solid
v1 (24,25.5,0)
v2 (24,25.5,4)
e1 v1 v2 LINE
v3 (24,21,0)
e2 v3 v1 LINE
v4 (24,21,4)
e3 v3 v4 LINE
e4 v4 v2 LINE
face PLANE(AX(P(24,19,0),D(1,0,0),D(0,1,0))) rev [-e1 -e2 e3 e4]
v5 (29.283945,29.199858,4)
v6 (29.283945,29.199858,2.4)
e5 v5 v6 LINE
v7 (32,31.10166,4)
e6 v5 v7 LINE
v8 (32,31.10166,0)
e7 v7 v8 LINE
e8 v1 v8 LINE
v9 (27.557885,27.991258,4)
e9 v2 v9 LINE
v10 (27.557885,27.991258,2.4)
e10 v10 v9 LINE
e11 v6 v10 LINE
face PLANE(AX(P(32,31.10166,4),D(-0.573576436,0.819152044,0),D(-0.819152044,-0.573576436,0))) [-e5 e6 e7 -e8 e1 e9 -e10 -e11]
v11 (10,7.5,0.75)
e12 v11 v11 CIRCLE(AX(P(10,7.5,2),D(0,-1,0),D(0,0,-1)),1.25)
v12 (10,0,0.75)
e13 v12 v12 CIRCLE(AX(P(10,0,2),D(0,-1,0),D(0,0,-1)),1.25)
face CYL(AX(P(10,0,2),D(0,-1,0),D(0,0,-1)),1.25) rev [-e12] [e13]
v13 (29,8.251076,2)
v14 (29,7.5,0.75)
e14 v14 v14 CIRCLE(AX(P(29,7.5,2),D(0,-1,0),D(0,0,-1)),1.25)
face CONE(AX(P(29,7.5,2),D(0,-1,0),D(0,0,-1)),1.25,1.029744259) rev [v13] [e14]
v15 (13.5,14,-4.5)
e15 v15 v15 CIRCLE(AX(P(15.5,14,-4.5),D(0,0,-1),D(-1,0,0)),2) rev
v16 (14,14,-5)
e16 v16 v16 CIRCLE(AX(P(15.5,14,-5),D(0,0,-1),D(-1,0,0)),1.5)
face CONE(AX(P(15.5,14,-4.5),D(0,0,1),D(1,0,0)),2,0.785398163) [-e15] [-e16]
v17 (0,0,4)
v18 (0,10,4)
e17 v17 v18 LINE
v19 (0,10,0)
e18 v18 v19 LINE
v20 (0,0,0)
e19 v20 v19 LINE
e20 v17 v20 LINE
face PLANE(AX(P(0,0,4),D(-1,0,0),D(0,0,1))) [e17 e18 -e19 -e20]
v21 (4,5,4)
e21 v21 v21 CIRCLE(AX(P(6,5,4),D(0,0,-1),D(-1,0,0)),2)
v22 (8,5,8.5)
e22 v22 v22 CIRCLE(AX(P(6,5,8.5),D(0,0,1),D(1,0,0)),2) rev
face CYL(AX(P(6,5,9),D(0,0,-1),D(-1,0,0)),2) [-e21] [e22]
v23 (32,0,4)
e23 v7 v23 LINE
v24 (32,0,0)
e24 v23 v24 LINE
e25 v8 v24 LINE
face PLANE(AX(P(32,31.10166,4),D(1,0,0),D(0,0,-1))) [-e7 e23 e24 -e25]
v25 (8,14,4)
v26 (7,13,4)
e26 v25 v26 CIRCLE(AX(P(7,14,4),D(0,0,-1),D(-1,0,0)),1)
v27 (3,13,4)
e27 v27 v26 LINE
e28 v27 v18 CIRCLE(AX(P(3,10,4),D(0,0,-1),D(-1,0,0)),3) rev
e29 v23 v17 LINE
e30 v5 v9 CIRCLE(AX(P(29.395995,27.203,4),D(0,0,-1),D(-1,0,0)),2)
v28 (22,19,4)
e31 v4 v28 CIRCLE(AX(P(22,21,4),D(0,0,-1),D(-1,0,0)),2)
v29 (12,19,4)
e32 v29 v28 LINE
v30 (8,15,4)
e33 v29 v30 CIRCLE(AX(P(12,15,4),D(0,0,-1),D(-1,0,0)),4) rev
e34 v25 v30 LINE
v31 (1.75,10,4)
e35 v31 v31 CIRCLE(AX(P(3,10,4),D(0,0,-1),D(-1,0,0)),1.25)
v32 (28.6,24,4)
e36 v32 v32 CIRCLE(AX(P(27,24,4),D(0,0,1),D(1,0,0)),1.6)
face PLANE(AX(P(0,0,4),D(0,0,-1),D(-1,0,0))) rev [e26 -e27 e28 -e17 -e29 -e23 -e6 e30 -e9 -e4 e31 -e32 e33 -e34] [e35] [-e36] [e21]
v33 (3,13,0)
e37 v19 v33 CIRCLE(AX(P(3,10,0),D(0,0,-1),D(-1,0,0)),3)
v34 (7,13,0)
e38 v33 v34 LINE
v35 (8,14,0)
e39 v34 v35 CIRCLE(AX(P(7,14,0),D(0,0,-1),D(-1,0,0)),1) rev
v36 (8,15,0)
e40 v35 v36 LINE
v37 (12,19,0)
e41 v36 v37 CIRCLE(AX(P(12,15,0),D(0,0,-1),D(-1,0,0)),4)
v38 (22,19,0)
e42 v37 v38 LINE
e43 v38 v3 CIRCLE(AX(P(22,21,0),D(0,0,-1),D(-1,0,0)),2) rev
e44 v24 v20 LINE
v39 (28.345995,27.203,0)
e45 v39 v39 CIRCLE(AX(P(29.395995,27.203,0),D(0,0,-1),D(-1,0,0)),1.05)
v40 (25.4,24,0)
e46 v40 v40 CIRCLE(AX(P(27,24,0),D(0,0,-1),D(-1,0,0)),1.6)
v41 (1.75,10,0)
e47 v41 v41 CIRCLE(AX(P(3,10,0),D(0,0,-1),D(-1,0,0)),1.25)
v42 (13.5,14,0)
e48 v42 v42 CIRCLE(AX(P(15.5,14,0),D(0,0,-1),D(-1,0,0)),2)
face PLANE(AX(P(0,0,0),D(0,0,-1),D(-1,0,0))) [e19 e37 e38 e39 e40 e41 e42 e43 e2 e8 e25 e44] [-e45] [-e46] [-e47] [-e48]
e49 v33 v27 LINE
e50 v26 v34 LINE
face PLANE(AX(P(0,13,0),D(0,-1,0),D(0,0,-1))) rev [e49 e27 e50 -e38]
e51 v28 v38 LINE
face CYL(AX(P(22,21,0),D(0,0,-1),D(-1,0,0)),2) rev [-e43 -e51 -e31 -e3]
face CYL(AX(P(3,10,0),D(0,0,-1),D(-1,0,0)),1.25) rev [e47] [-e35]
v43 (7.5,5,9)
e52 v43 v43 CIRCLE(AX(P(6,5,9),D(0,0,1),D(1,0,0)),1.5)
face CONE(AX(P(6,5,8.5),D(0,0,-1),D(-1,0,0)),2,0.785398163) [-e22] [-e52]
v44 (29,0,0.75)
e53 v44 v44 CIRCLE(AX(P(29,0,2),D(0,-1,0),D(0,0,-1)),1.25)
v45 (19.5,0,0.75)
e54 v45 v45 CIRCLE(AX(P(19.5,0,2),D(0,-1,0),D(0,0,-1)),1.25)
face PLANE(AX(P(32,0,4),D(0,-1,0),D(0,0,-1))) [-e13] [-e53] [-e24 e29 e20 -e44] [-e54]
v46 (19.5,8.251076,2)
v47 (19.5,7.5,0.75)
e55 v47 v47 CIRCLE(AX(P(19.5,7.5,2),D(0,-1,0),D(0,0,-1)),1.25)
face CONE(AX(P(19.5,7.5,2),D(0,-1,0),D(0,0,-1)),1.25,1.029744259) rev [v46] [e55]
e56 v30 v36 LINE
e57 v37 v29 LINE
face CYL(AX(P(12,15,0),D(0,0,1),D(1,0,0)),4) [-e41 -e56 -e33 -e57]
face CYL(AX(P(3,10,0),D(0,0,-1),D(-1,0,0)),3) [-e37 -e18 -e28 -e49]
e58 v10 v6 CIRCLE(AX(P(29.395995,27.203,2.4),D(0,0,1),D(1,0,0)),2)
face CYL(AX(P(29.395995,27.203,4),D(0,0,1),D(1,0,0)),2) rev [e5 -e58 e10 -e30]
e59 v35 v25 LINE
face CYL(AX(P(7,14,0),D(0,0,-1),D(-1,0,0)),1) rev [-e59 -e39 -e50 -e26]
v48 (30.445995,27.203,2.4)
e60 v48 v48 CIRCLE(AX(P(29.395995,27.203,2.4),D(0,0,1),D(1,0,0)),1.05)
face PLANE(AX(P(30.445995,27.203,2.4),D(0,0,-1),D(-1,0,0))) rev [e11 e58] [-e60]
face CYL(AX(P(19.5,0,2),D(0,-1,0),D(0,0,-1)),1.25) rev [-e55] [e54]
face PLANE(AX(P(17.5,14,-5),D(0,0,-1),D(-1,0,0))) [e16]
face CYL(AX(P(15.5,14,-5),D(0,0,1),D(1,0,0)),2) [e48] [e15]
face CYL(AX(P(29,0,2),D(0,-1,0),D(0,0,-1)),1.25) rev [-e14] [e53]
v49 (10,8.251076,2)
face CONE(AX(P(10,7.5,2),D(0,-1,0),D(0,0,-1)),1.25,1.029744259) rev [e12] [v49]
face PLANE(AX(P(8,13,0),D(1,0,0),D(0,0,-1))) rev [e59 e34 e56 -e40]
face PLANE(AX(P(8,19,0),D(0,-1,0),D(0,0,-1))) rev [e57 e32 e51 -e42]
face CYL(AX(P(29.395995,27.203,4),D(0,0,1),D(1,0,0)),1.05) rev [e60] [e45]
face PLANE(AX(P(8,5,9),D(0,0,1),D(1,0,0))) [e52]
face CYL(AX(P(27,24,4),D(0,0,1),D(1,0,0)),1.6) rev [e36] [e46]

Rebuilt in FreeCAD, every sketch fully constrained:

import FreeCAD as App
import Part
import Sketcher
Q = App.Units.Quantity


def edges_at(feature, points):
    """Names of the edges that pass closest to the given points."""
    edges = feature.Shape.Edges
    near = lambda p: min(range(len(edges)), key=lambda i: edges[i].distToShape(Part.Vertex(*p))[0])
    return sorted({f"Edge{near(p) + 1}" for p in points})


def faces_at(feature, points):
    """Names of the faces that lie closest to the given points."""
    faces = feature.Shape.Faces
    near = lambda p: min(range(len(faces)), key=lambda i: faces[i].distToShape(Part.Vertex(*p))[0])
    return sorted({f"Face{near(p) + 1}" for p in points})


def add_polygon(sketch, points):
    """Adds a closed chain of lines whose ends are joined by coincident constraints."""
    first, n = sketch.GeometryCount, len(points)
    for a, b in zip(points, points[1:] + points[:1]):
        sketch.addGeometry(Part.LineSegment(App.Vector(*a, 0), App.Vector(*b, 0)), False)
    for i in range(n):
        sketch.addConstraint(Sketcher.Constraint("Coincident", first + i, 2, first + (i + 1) % n, 1))

doc = App.newDocument("Part")
params = doc.addObject("Spreadsheet::Sheet", "Params")
for row, (alias, value) in enumerate([
    ("sketch1_width", "32 mm"),
    ("pad1_length", "4 mm"),
    ("sketch2_width", "8 mm"),
    ("sketch3_width", "16 mm"),
    ("draft_angle", "35 deg"),
    ("sketch4_width", "2 mm"),
    ("sketch4_height", "5 mm"),
    ("revolution_angle", "360 deg"),
    ("sketch5_width", "2 mm"),
    ("sketch5_height", "5 mm"),
    ("revolution2_angle", "360 deg"),
    ("sketch6_diameter", "3.2 mm"),
    ("hole_diameter", "3.2 mm"),
    ("hole_depth", "9 mm"),
    ("sketch7_diameter", "2.5 mm"),
    ("hole2_diameter", "2.5 mm"),
    ("hole2_depth", "9 mm"),
    ("sketch8_diameter", "2.1 mm"),
    ("hole3_diameter", "2.1 mm"),
    ("hole3_depth", "9 mm"),
    ("hole3_cbore_diameter", "4 mm"),
    ("hole3_cbore_depth", "1.6 mm"),
    ("sketch9_diameter", "2.5 mm"),
    ("hole4_diameter", "2.5 mm"),
    ("hole4_depth", "7.5 mm"),
    ("chamfer_size", "0.5 mm"),
    ("fillet_radius", "1 mm"),
    ("fillet2_radius", "2 mm"),
    ("fillet3_radius", "3 mm"),
    ("fillet4_radius", "4 mm"),
], start=1):
    params.set(f"A{row}", alias)
    params.set(f"B{row}", "=" + value)
    params.setAlias(f"B{row}", alias)

body = doc.addObject("PartDesign::Body", "Body")

# Sketch on XY plane
sketch1 = doc.addObject("Sketcher::SketchObject", "Sketch")
body.addObject(sketch1)
sketch1.AttachmentSupport = (doc.XY_Plane, [""])
sketch1.MapMode = "FlatFace"
add_polygon(sketch1, [(32, 31), (32, 0), (0, 0), (0, 31)])  # lines 0-3
sketch1.addConstraint([
    Sketcher.Constraint("Vertical", 0),
    Sketcher.Constraint("Horizontal", 1),
    Sketcher.Constraint("Vertical", 2),
    Sketcher.Constraint("Horizontal", 3),
    Sketcher.Constraint("Coincident", 1, 2, -1, 1),
    Sketcher.Constraint("DistanceX", 1, 2, 1, 1, Q("32 mm")),
    Sketcher.Constraint("DistanceY", 0, 2, 0, 1, Q("31.10166 mm")),
])
sketch1.setExpression("Constraints[9]", "Params.sketch1_width")
pad1 = doc.addObject("PartDesign::Pad", "Pad")
body.addObject(pad1)
pad1.Profile = sketch1
pad1.setExpression("Length", "Params.pad1_length")

# Sketch on XY plane
sketch2 = doc.addObject("Sketcher::SketchObject", "Sketch001")
body.addObject(sketch2)
sketch2.AttachmentSupport = (doc.XY_Plane, [""])
sketch2.MapMode = "FlatFace"
sketch2.AttachmentOffset = App.Placement(App.Vector(0, 0, 4), App.Rotation())
add_polygon(sketch2, [(0, 31), (0, 13), (8, 13), (8, 31)])  # lines 0-3
sketch2.addConstraint([
    Sketcher.Constraint("Vertical", 0),
    Sketcher.Constraint("Horizontal", 1),
    Sketcher.Constraint("Vertical", 2),
    Sketcher.Constraint("Horizontal", 3),
    Sketcher.Constraint("PointOnObject", 0, 2, -2),
    Sketcher.Constraint("DistanceX", 1, 1, 1, 2, Q("8 mm")),
    Sketcher.Constraint("DistanceY", -1, 1, 0, 2, Q("13 mm")),
    Sketcher.Constraint("DistanceY", 0, 2, 0, 1, Q("18.10166 mm")),
])
sketch2.setExpression("Constraints[9]", "Params.sketch2_width")
pocket1 = doc.addObject("PartDesign::Pocket", "Pocket")
body.addObject(pocket1)
pocket1.Profile = sketch2
pocket1.Type = "ThroughAll"

# Sketch on XY plane
sketch3 = doc.addObject("Sketcher::SketchObject", "Sketch002")
body.addObject(sketch3)
sketch3.AttachmentSupport = (doc.XY_Plane, [""])
sketch3.MapMode = "FlatFace"
sketch3.AttachmentOffset = App.Placement(App.Vector(0, 0, 4), App.Rotation())
add_polygon(sketch3, [(8, 31), (8, 19), (24, 19), (24, 31)])  # lines 0-3
sketch3.addConstraint([
    Sketcher.Constraint("Vertical", 0),
    Sketcher.Constraint("Horizontal", 1),
    Sketcher.Constraint("Vertical", 2),
    Sketcher.Constraint("Horizontal", 3),
    Sketcher.Constraint("DistanceX", 1, 1, 1, 2, Q("16 mm")),
    Sketcher.Constraint("DistanceX", -1, 1, 0, 2, Q("8 mm")),
    Sketcher.Constraint("DistanceY", -1, 1, 0, 2, Q("19 mm")),
    Sketcher.Constraint("DistanceY", 0, 2, 0, 1, Q("12.10166 mm")),
])
sketch3.setExpression("Constraints[8]", "Params.sketch3_width")
pocket2 = doc.addObject("PartDesign::Pocket", "Pocket001")
body.addObject(pocket2)
pocket2.Profile = sketch3
pocket2.Type = "ThroughAll"
doc.recompute()

datumplane = doc.addObject("PartDesign::Plane", "DatumPlane")
body.addObject(datumplane)
datumplane.AttachmentSupport = (doc.YZ_Plane, [""])
datumplane.MapMode = "FlatFace"
datumplane.AttachmentOffset = App.Placement(App.Vector(0, 0, 32), App.Rotation())
draft = doc.addObject("PartDesign::Draft", "Draft")
body.addObject(draft)
draft.Base = (pocket2, faces_at(pocket2, [(28, 31.102, 2)]))
draft.NeutralPlane = (datumplane, [""])
draft.setExpression("Angle", "Params.draft_angle")
draft.Reversed = True

# Sketch on XZ plane
sketch4 = doc.addObject("Sketcher::SketchObject", "Sketch003")
body.addObject(sketch4)
sketch4.AttachmentSupport = (doc.XZ_Plane, [""])
sketch4.MapMode = "FlatFace"
sketch4.AttachmentOffset = App.Placement(App.Vector(0, 0, -5), App.Rotation())
add_polygon(sketch4, [(6, 9), (6, 4), (8, 4), (8, 9)])  # lines 0-3
sketch4.addGeometry(Part.LineSegment(App.Vector(6, 9, 0), App.Vector(6, 4, 0)), True)  # axis
sketch4.addConstraint([
    Sketcher.Constraint("Vertical", 0),
    Sketcher.Constraint("Horizontal", 1),
    Sketcher.Constraint("Vertical", 2),
    Sketcher.Constraint("Horizontal", 3),
    Sketcher.Constraint("Vertical", 4),
    Sketcher.Constraint("Coincident", 4, 1, 3, 2),
    Sketcher.Constraint("Horizontal", 1, 2, 4, 2),
    Sketcher.Constraint("DistanceX", 1, 1, 1, 2, Q("2 mm")),
    Sketcher.Constraint("DistanceY", 0, 2, 0, 1, Q("5 mm")),
    Sketcher.Constraint("DistanceX", -1, 1, 0, 2, Q("6 mm")),
    Sketcher.Constraint("DistanceY", -1, 1, 0, 2, Q("4 mm")),
])
sketch4.setExpression("Constraints[11]", "Params.sketch4_width")
sketch4.setExpression("Constraints[12]", "Params.sketch4_height")
revolution = doc.addObject("PartDesign::Revolution", "Revolution")
body.addObject(revolution)
revolution.Profile = sketch4
revolution.ReferenceAxis = (sketch4, ["Axis0"])
revolution.setExpression("Angle", "Params.revolution_angle")

# Sketch on XZ plane
sketch5 = doc.addObject("Sketcher::SketchObject", "Sketch004")
body.addObject(sketch5)
sketch5.AttachmentSupport = (doc.XZ_Plane, [""])
sketch5.MapMode = "FlatFace"
sketch5.AttachmentOffset = App.Placement(App.Vector(0, 0, -14), App.Rotation())
add_polygon(sketch5, [(15.5, -5), (15.5, 0), (17.5, 0), (17.5, -5)])  # lines 0-3
sketch5.addGeometry(Part.LineSegment(App.Vector(15.5, -5, 0), App.Vector(15.5, 0, 0)), True)  # axis
sketch5.addConstraint([
    Sketcher.Constraint("Vertical", 0),
    Sketcher.Constraint("Horizontal", 1),
    Sketcher.Constraint("Vertical", 2),
    Sketcher.Constraint("Horizontal", 3),
    Sketcher.Constraint("Vertical", 4),
    Sketcher.Constraint("Coincident", 4, 1, 3, 2),
    Sketcher.Constraint("PointOnObject", 0, 2, -1),
    Sketcher.Constraint("PointOnObject", 4, 2, -1),
    Sketcher.Constraint("DistanceX", 1, 1, 1, 2, Q("2 mm")),
    Sketcher.Constraint("DistanceY", 0, 1, 0, 2, Q("5 mm")),
    Sketcher.Constraint("DistanceX", -1, 1, 0, 2, Q("15.5 mm")),
])
sketch5.setExpression("Constraints[12]", "Params.sketch5_width")
sketch5.setExpression("Constraints[13]", "Params.sketch5_height")
revolution2 = doc.addObject("PartDesign::Revolution", "Revolution001")
body.addObject(revolution2)
revolution2.Profile = sketch5
revolution2.ReferenceAxis = (sketch5, ["Axis0"])
revolution2.setExpression("Angle", "Params.revolution2_angle")

# Sketch on XY plane
sketch6 = doc.addObject("Sketcher::SketchObject", "Sketch005")
body.addObject(sketch6)
sketch6.AttachmentSupport = (doc.XY_Plane, [""])
sketch6.MapMode = "FlatFace"
sketch6.AttachmentOffset = App.Placement(App.Vector(0, 0, 4), App.Rotation())
sketch6.addGeometry(Part.Circle(App.Vector(27, 24, 0), App.Vector(0, 0, 1), 1.6), False)
sketch6.addConstraint([
    Sketcher.Constraint("Diameter", 0, Q("3.2 mm")),
    Sketcher.Constraint("DistanceX", -1, 1, 0, 3, Q("27 mm")),
    Sketcher.Constraint("DistanceY", -1, 1, 0, 3, Q("24 mm")),
])
sketch6.setExpression("Constraints[0]", "Params.sketch6_diameter")
doc.recompute()
hole = doc.addObject("PartDesign::Hole", "Hole")
body.addObject(hole)
hole.Profile = sketch6
hole.ThreadType = "None"
hole.setExpression("Diameter", "Params.hole_diameter")
hole.DepthType = "Dimension"
hole.setExpression("Depth", "Params.hole_depth")
hole.DrillPoint = "Flat"

# Sketch on XY plane
sketch7 = doc.addObject("Sketcher::SketchObject", "Sketch006")
body.addObject(sketch7)
sketch7.AttachmentSupport = (doc.XY_Plane, [""])
sketch7.MapMode = "FlatFace"
sketch7.addGeometry(Part.Circle(App.Vector(3, 10, 0), App.Vector(0, 0, 1), 1.2), False)
sketch7.addConstraint([
    Sketcher.Constraint("Diameter", 0, Q("2.5 mm")),
    Sketcher.Constraint("DistanceX", -1, 1, 0, 3, Q("3 mm")),
    Sketcher.Constraint("DistanceY", -1, 1, 0, 3, Q("10 mm")),
])
sketch7.setExpression("Constraints[0]", "Params.sketch7_diameter")
doc.recompute()
hole2 = doc.addObject("PartDesign::Hole", "Hole001")
body.addObject(hole2)
hole2.Profile = sketch7
hole2.ThreadType = "None"
hole2.setExpression("Diameter", "Params.hole2_diameter")
hole2.DepthType = "Dimension"
hole2.setExpression("Depth", "Params.hole2_depth")
hole2.DrillPoint = "Flat"
hole2.Reversed = True

# Sketch on XY plane
sketch8 = doc.addObject("Sketcher::SketchObject", "Sketch007")
body.addObject(sketch8)
sketch8.AttachmentSupport = (doc.XY_Plane, [""])
sketch8.MapMode = "FlatFace"
sketch8.AttachmentOffset = App.Placement(App.Vector(0, 0, 4), App.Rotation())
sketch8.addGeometry(Part.Circle(App.Vector(29.4, 27.2, 0), App.Vector(0, 0, 1), 1.1), False)
sketch8.addConstraint([
    Sketcher.Constraint("Diameter", 0, Q("2.1 mm")),
    Sketcher.Constraint("DistanceY", -1, 1, 0, 3, Q("27.203 mm")),
    Sketcher.Constraint("DistanceX", -1, 1, 0, 3, Q("29.395995 mm")),
])
sketch8.setExpression("Constraints[0]", "Params.sketch8_diameter")
doc.recompute()
hole3 = doc.addObject("PartDesign::Hole", "Hole002")
body.addObject(hole3)
hole3.Profile = sketch8
hole3.ThreadType = "None"
hole3.setExpression("Diameter", "Params.hole3_diameter")
hole3.DepthType = "Dimension"
hole3.setExpression("Depth", "Params.hole3_depth")
hole3.DrillPoint = "Flat"
hole3.HoleCutType = "Counterbore"
hole3.setExpression("HoleCutDiameter", "Params.hole3_cbore_diameter")
hole3.setExpression("HoleCutDepth", "Params.hole3_cbore_depth")

# Sketch on XZ plane
sketch9 = doc.addObject("Sketcher::SketchObject", "Sketch008")
body.addObject(sketch9)
sketch9.AttachmentSupport = (doc.XZ_Plane, [""])
sketch9.MapMode = "FlatFace"
sketch9.addGeometry([
    Part.Circle(App.Vector(10, 2, 0), App.Vector(0, 0, 1), 1.2),
    Part.Circle(App.Vector(19.5, 2, 0), App.Vector(0, 0, 1), 1.2),
    Part.Circle(App.Vector(29, 2, 0), App.Vector(0, 0, 1), 1.2),
], False)
sketch9.addConstraint([
    Sketcher.Constraint("Equal", 0, 1),
    Sketcher.Constraint("Equal", 1, 2),
    Sketcher.Constraint("Horizontal", 0, 3, 1, 3),
    Sketcher.Constraint("Horizontal", 1, 3, 2, 3),
    Sketcher.Constraint("Diameter", 0, Q("2.5 mm")),
    Sketcher.Constraint("DistanceX", -1, 1, 0, 3, Q("10 mm")),
    Sketcher.Constraint("DistanceY", -1, 1, 0, 3, Q("2 mm")),
    Sketcher.Constraint("DistanceX", -1, 1, 2, 3, Q("29 mm")),
    Sketcher.Constraint("DistanceX", -1, 1, 1, 3, Q("19.5 mm")),
])
sketch9.setExpression("Constraints[4]", "Params.sketch9_diameter")
doc.recompute()
hole4 = doc.addObject("PartDesign::Hole", "Hole003")
body.addObject(hole4)
hole4.Profile = sketch9
hole4.ThreadType = "None"
hole4.setExpression("Diameter", "Params.hole4_diameter")
hole4.DepthType = "Dimension"
hole4.setExpression("Depth", "Params.hole4_depth")
hole4.DrillPoint = "Angled"
hole4.DrillPointAngle = 118
doc.recompute()

chamfer = doc.addObject("PartDesign::Chamfer", "Chamfer")
body.addObject(chamfer)
chamfer.Base = (hole4, edges_at(hole4, [(4, 5, 9), (13.5, 14, -5)]))
chamfer.setExpression("Size", "Params.chamfer_size")
doc.recompute()

fillet = doc.addObject("PartDesign::Fillet", "Fillet")
body.addObject(fillet)
fillet.Base = (chamfer, edges_at(chamfer, [(8, 13, 2)]))
fillet.setExpression("Radius", "Params.fillet_radius")
doc.recompute()

fillet2 = doc.addObject("PartDesign::Fillet", "Fillet001")
body.addObject(fillet2)
fillet2.Base = (fillet, edges_at(fillet, [(24, 19, 2)]))
fillet2.setExpression("Radius", "Params.fillet2_radius")
doc.recompute()

fillet3 = doc.addObject("PartDesign::Fillet", "Fillet002")
body.addObject(fillet3)
fillet3.Base = (fillet2, edges_at(fillet2, [(0, 13, 2)]))
fillet3.setExpression("Radius", "Params.fillet3_radius")
doc.recompute()

fillet4 = doc.addObject("PartDesign::Fillet", "Fillet003")
body.addObject(fillet4)
fillet4.Base = (fillet3, edges_at(fillet3, [(8, 19, 2)]))
fillet4.setExpression("Radius", "Params.fillet4_radius")

doc.recompute()
